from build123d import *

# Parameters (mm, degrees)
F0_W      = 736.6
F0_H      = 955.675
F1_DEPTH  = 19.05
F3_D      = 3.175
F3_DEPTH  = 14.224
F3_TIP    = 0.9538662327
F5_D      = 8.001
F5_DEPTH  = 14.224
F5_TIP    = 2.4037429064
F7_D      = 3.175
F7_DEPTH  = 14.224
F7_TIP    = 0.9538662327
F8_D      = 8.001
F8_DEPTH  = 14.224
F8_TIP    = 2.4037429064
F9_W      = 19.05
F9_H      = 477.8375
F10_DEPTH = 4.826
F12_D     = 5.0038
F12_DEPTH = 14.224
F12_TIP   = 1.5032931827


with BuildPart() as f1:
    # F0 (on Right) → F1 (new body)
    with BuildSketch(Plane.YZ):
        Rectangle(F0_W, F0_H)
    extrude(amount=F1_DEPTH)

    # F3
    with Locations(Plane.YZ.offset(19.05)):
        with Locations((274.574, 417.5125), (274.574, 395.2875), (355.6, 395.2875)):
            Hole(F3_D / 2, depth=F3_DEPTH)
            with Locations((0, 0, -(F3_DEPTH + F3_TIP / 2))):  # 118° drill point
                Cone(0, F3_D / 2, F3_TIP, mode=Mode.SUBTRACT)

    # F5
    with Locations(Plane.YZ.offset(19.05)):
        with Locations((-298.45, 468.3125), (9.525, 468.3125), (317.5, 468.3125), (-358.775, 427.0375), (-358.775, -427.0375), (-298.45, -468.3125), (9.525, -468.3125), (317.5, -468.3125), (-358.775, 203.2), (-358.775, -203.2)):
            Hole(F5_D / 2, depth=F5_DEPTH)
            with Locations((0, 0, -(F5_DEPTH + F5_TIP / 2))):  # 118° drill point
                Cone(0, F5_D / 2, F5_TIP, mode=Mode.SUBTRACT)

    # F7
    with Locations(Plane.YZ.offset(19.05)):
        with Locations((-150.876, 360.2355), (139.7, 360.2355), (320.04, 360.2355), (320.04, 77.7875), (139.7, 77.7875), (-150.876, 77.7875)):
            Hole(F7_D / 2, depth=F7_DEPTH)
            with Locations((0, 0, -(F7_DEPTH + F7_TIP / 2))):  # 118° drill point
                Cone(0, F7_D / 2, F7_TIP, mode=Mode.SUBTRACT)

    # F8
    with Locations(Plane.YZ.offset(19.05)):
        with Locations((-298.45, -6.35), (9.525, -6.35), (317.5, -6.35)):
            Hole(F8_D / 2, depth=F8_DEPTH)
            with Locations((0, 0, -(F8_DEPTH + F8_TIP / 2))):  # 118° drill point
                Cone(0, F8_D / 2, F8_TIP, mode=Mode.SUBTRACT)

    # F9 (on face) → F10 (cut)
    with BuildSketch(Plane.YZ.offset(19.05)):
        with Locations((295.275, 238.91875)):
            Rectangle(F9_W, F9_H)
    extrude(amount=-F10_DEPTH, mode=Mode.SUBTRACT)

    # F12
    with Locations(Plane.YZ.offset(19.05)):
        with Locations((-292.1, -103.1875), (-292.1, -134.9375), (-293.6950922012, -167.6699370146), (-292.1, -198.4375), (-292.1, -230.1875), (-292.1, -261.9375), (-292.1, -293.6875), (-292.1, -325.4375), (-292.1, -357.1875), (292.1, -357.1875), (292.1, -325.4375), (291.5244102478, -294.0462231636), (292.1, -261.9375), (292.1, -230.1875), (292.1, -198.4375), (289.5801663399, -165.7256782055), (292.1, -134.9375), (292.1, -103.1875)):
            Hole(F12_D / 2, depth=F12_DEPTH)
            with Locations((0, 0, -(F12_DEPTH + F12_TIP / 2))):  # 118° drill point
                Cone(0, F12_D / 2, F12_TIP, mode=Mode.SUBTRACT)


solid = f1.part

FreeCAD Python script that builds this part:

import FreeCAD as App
import Part
import Sketcher
from FreeCAD import Vector
Q = App.Units.Quantity


def add_polygon(sketch, points):
    """Adds a closed chain of lines whose ends are joined by coincident constraints."""
    first, n = sketch.GeometryCount, len(points)
    for a, b in zip(points, points[1:] + points[:1]):
        sketch.addGeometry(Part.LineSegment(App.Vector(*a, 0), App.Vector(*b, 0)), False)
    for i in range(n):
        sketch.addConstraint(Sketcher.Constraint("Coincident", first + i, 2, first + (i + 1) % n, 1))

doc = App.newDocument("Part")
body = doc.addObject("PartDesign::Body", "Body")

# Sketch on YZ plane
sketch1 = body.newObject("Sketcher::SketchObject", "Sketch")
sketch1.AttachmentSupport = (doc.getObject("YZ_Plane"), [""])
sketch1.MapMode = "FlatFace"
add_polygon(sketch1, [(-368.3, 477.8375), (-368.3, -477.8375), (368.3, -477.8375), (368.3, 477.8375)])  # lines 0-3
sketch1.addConstraint([
    Sketcher.Constraint("Vertical", 0),
    Sketcher.Constraint("Horizontal", 1),
    Sketcher.Constraint("Vertical", 2),
    Sketcher.Constraint("Horizontal", 3),
    Sketcher.Constraint("Symmetric", 0, 2, 2, 2, -1, 1),
    Sketcher.Constraint("DistanceX", 1, 1, 1, 2, Q("29 in")),
    Sketcher.Constraint("DistanceY", 0, 2, 0, 1, Q("37.625 in")),
])
pad1 = body.newObject("PartDesign::Pad", "Pad")
pad1.Profile = sketch1
pad1.Length = Q("0.75 in")

# Sketch on YZ plane
sketch2 = body.newObject("Sketcher::SketchObject", "Sketch001")
sketch2.AttachmentSupport = (doc.getObject("YZ_Plane"), [""])
sketch2.MapMode = "FlatFace"
sketch2.AttachmentOffset = App.Placement(Vector(0, 0, 0.75 * 25.4), App.Rotation())
sketch2.addGeometry([
    Part.Circle(Vector(274.574, 417.5125, 0), Vector(0, 0, 1), 1.5875),
    Part.Circle(Vector(274.574, 395.2875, 0), Vector(0, 0, 1), 1.5875),
    Part.Circle(Vector(355.6, 395.2875, 0), Vector(0, 0, 1), 1.5875),
], False)
sketch2.addConstraint([
    Sketcher.Constraint("Equal", 0, 1),
    Sketcher.Constraint("Equal", 1, 2),
    Sketcher.Constraint("Horizontal", 1, 3, 2, 3),
    Sketcher.Constraint("Vertical", 0, 3, 1, 3),
    Sketcher.Constraint("Diameter", 0, Q("0.125 in")),
    Sketcher.Constraint("DistanceX", -1, 1, 2, 3, Q("14 in")),
    Sketcher.Constraint("DistanceX", -1, 1, 0, 3, Q("10.81 in")),
    Sketcher.Constraint("DistanceY", -1, 1, 0, 3, Q("16.4375 in")),
    Sketcher.Constraint("DistanceY", -1, 1, 1, 3, Q("15.5625 in")),
])
doc.recompute()
hole = body.newObject("PartDesign::Hole", "Hole")
hole.Profile = sketch2
hole.ThreadType = "None"
hole.Diameter = Q("0.125 in")
hole.DepthType = "Dimension"
hole.Depth = Q("0.56 in")
hole.DrillPoint = "Angled"
hole.DrillPointAngle = 118

# Sketch on YZ plane
sketch3 = body.newObject("Sketcher::SketchObject", "Sketch002")
sketch3.AttachmentSupport = (doc.getObject("YZ_Plane"), [""])
sketch3.MapMode = "FlatFace"
sketch3.AttachmentOffset = App.Placement(Vector(0, 0, 0.75 * 25.4), App.Rotation())
sketch3.addGeometry([
    Part.Circle(Vector(-298.45, 468.3125, 0), Vector(0, 0, 1), 4.0005),  # 0
    Part.Circle(Vector(9.525, 468.3125, 0), Vector(0, 0, 1), 4.0005),  # 1
    Part.Circle(Vector(317.5, 468.3125, 0), Vector(0, 0, 1), 4.0005),  # 2
    Part.Circle(Vector(-358.775, 427.0375, 0), Vector(0, 0, 1), 4.0005),  # 3
    Part.Circle(Vector(-358.775, -427.0375, 0), Vector(0, 0, 1), 4.0005),  # 4
    Part.Circle(Vector(-298.45, -468.3125, 0), Vector(0, 0, 1), 4.0005),  # 5
    Part.Circle(Vector(9.525, -468.3125, 0), Vector(0, 0, 1), 4.0005),  # 6
    Part.Circle(Vector(317.5, -468.3125, 0), Vector(0, 0, 1), 4.0005),  # 7
    Part.Circle(Vector(-358.775, 203.2, 0), Vector(0, 0, 1), 4.0005),  # 8
    Part.Circle(Vector(-358.775, -203.2, 0), Vector(0, 0, 1), 4.0005),  # 9
], False)
sketch3.addConstraint([
    Sketcher.Constraint("Equal", 0, 1),
    Sketcher.Constraint("Equal", 1, 2),
    Sketcher.Constraint("Equal", 2, 3),
    Sketcher.Constraint("Equal", 3, 4),
    Sketcher.Constraint("Equal", 4, 5),
    Sketcher.Constraint("Equal", 5, 6),
    Sketcher.Constraint("Equal", 6, 7),
    Sketcher.Constraint("Equal", 7, 8),
    Sketcher.Constraint("Equal", 8, 9),
    Sketcher.Constraint("Symmetric", 3, 3, 4, 3, -1),
    Sketcher.Constraint("Symmetric", 0, 3, 5, 3, -1),
    Sketcher.Constraint("Symmetric", 1, 3, 6, 3, -1),
    Sketcher.Constraint("Symmetric", 2, 3, 7, 3, -1),
    Sketcher.Constraint("Symmetric", 8, 3, 9, 3, -1),
    Sketcher.Constraint("Horizontal", 0, 3, 1, 3),
    Sketcher.Constraint("Horizontal", 1, 3, 2, 3),
    Sketcher.Constraint("Vertical", 4, 3, 8, 3),
    Sketcher.Constraint("Diameter", 0, Q("0.315 in")),
    Sketcher.Constraint("DistanceY", -1, 1, 8, 3, Q("8 in")),
    Sketcher.Constraint("DistanceX", -1, 1, 2, 3, Q("12.5 in")),
    Sketcher.Constraint("DistanceX", 3, 3, 1, 3, Q("14.5 in")),
    Sketcher.Constraint("DistanceX", 0, 3, -1, 1, Q("11.75 in")),
    Sketcher.Constraint("DistanceY", 4, 3, 0, 3, Q("35.25 in")),
    Sketcher.Constraint("DistanceY", -1, 1, 0, 3, Q("18.4375 in")),
    Sketcher.Constraint("DistanceX", -1, 1, 1, 3, Q("0.375 in")),
])
doc.recompute()
hole2 = body.newObject("PartDesign::Hole", "Hole001")
hole2.Profile = sketch3
hole2.ThreadType = "None"
hole2.Diameter = Q("0.315 in")
hole2.DepthType = "Dimension"
hole2.Depth = Q("0.56 in")
hole2.DrillPoint = "Angled"
hole2.DrillPointAngle = 118

# Sketch on YZ plane
sketch4 = body.newObject("Sketcher::SketchObject", "Sketch003")
sketch4.AttachmentSupport = (doc.getObject("YZ_Plane"), [""])
sketch4.MapMode = "FlatFace"
sketch4.AttachmentOffset = App.Placement(Vector(0, 0, 0.75 * 25.4), App.Rotation())
sketch4.addGeometry([
    Part.Circle(Vector(-150.876, 360.2355, 0), Vector(0, 0, 1), 1.5875),  # 0
    Part.Circle(Vector(139.7, 360.2355, 0), Vector(0, 0, 1), 1.5875),  # 1
    Part.Circle(Vector(320.04, 360.2355, 0), Vector(0, 0, 1), 1.5875),  # 2
    Part.Circle(Vector(320.04, 77.7875, 0), Vector(0, 0, 1), 1.5875),  # 3
    Part.Circle(Vector(139.7, 77.7875, 0), Vector(0, 0, 1), 1.5875),  # 4
    Part.Circle(Vector(-150.876, 77.7875, 0), Vector(0, 0, 1), 1.5875),  # 5
], False)
sketch4.addConstraint([
    Sketcher.Constraint("Equal", 0, 1),
    Sketcher.Constraint("Equal", 1, 2),
    Sketcher.Constraint("Equal", 2, 3),
    Sketcher.Constraint("Equal", 3, 4),
    Sketcher.Constraint("Equal", 4, 5),
    Sketcher.Constraint("Horizontal", 0, 3, 1, 3),
    Sketcher.Constraint("Horizontal", 1, 3, 2, 3),
    Sketcher.Constraint("Horizontal", 3, 3, 4, 3),
    Sketcher.Constraint("Horizontal", 4, 3, 5, 3),
    Sketcher.Constraint("Vertical", 2, 3, 3, 3),
    Sketcher.Constraint("Vertical", 1, 3, 4, 3),
    Sketcher.Constraint("Vertical", 0, 3, 5, 3),
    Sketcher.Constraint("Diameter", 0, Q("0.125 in")),
    Sketcher.Constraint("DistanceX", -1, 1, 1, 3, Q("5.5 in")),
    Sketcher.Constraint("DistanceX", -1, 1, 2, 3, Q("12.6 in")),
    Sketcher.Constraint("DistanceX", 0, 3, -1, 1, Q("5.94 in")),
    Sketcher.Constraint("DistanceY", 3, 3, 2, 3, Q("11.12 in")),
    Sketcher.Constraint("DistanceY", -1, 1, 3, 3, Q("3.0625 in")),
])
doc.recompute()
hole3 = body.newObject("PartDesign::Hole", "Hole002")
hole3.Profile = sketch4
hole3.ThreadType = "None"
hole3.Diameter = Q("0.125 in")
hole3.DepthType = "Dimension"
hole3.Depth = Q("0.56 in")
hole3.DrillPoint = "Angled"
hole3.DrillPointAngle = 118

# Sketch on YZ plane
sketch5 = body.newObject("Sketcher::SketchObject", "Sketch004")
sketch5.AttachmentSupport = (doc.getObject("YZ_Plane"), [""])
sketch5.MapMode = "FlatFace"
sketch5.AttachmentOffset = App.Placement(Vector(0, 0, 0.75 * 25.4), App.Rotation())
sketch5.addGeometry([
    Part.Circle(Vector(-298.45, -6.35, 0), Vector(0, 0, 1), 4.0005),
    Part.Circle(Vector(9.525, -6.35, 0), Vector(0, 0, 1), 4.0005),
    Part.Circle(Vector(317.5, -6.35, 0), Vector(0, 0, 1), 4.0005),
], False)
sketch5.addConstraint([
    Sketcher.Constraint("Equal", 0, 1),
    Sketcher.Constraint("Equal", 1, 2),
    Sketcher.Constraint("Horizontal", 0, 3, 1, 3),
    Sketcher.Constraint("Horizontal", 1, 3, 2, 3),
    Sketcher.Constraint("Diameter", 0, Q("0.315 in")),
    Sketcher.Constraint("DistanceX", -1, 1, 2, 3, Q("12.5 in")),
    Sketcher.Constraint("DistanceX", 0, 3, -1, 1, Q("11.75 in")),
    Sketcher.Constraint("DistanceY", 0, 3, -1, 1, Q("0.25 in")),
    Sketcher.Constraint("DistanceX", -1, 1, 1, 3, Q("0.375 in")),
])
doc.recompute()
hole4 = body.newObject("PartDesign::Hole", "Hole003")
hole4.Profile = sketch5
hole4.ThreadType = "None"
hole4.Diameter = Q("0.315 in")
hole4.DepthType = "Dimension"
hole4.Depth = Q("0.56 in")
hole4.DrillPoint = "Angled"
hole4.DrillPointAngle = 118

# Sketch on YZ plane
sketch6 = body.newObject("Sketcher::SketchObject", "Sketch005")
sketch6.AttachmentSupport = (doc.getObject("YZ_Plane"), [""])
sketch6.MapMode = "FlatFace"
sketch6.AttachmentOffset = App.Placement(Vector(0, 0, 0.75 * 25.4), App.Rotation())
add_polygon(sketch6, [(285.75, 477.8375), (285.75, 0), (304.8, 0), (304.8, 477.8375)])  # lines 0-3
sketch6.addConstraint([
    Sketcher.Constraint("Vertical", 0),
    Sketcher.Constraint("Horizontal", 1),
    Sketcher.Constraint("Vertical", 2),
    Sketcher.Constraint("Horizontal", 3),
    Sketcher.Constraint("PointOnObject", 0, 2, -1),
    Sketcher.Constraint("DistanceX", -1, 1, 1, 2, Q("12 in")),
    Sketcher.Constraint("DistanceX", 1, 1, 1, 2, Q("0.75 in")),
    Sketcher.Constraint("DistanceY", 0, 2, 0, 1, Q("18.8125 in")),
])
pocket1 = body.newObject("PartDesign::Pocket", "Pocket")
pocket1.Profile = sketch6
pocket1.Length = Q("0.19 in")

# Sketch on YZ plane
sketch7 = body.newObject("Sketcher::SketchObject", "Sketch006")
sketch7.AttachmentSupport = (doc.getObject("YZ_Plane"), [""])
sketch7.MapMode = "FlatFace"
sketch7.AttachmentOffset = App.Placement(Vector(0, 0, 0.75 * 25.4), App.Rotation())
sketch7.addGeometry([
    Part.Circle(Vector(-292.1, -103.1875, 0), Vector(0, 0, 1), 2.5019),  # 0
    Part.Circle(Vector(-292.1, -134.9375, 0), Vector(0, 0, 1), 2.5019),  # 1
    Part.Circle(Vector(-293.695092, -167.669937, 0), Vector(0, 0, 1), 2.5019),  # 2
    Part.Circle(Vector(-292.1, -198.4375, 0), Vector(0, 0, 1), 2.5019),  # 3
    Part.Circle(Vector(-292.1, -230.1875, 0), Vector(0, 0, 1), 2.5019),  # 4
    Part.Circle(Vector(-292.1, -261.9375, 0), Vector(0, 0, 1), 2.5019),  # 5
    Part.Circle(Vector(-292.1, -293.6875, 0), Vector(0, 0, 1), 2.5019),  # 6
    Part.Circle(Vector(-292.1, -325.4375, 0), Vector(0, 0, 1), 2.5019),  # 7
    Part.Circle(Vector(-292.1, -357.1875, 0), Vector(0, 0, 1), 2.5019),  # 8
    Part.Circle(Vector(292.1, -357.1875, 0), Vector(0, 0, 1), 2.5019),  # 9
    Part.Circle(Vector(292.1, -325.4375, 0), Vector(0, 0, 1), 2.5019),  # 10
    Part.Circle(Vector(291.52441, -294.046223, 0), Vector(0, 0, 1), 2.5019),  # 11
    Part.Circle(Vector(292.1, -261.9375, 0), Vector(0, 0, 1), 2.5019),  # 12
    Part.Circle(Vector(292.1, -230.1875, 0), Vector(0, 0, 1), 2.5019),  # 13
    Part.Circle(Vector(292.1, -198.4375, 0), Vector(0, 0, 1), 2.5019),  # 14
    Part.Circle(Vector(289.580166, -165.725678, 0), Vector(0, 0, 1), 2.5019),  # 15
    Part.Circle(Vector(292.1, -134.9375, 0), Vector(0, 0, 1), 2.5019),  # 16
    Part.Circle(Vector(292.1, -103.1875, 0), Vector(0, 0, 1), 2.5019),  # 17
], False)
sketch7.addConstraint([
    Sketcher.Constraint("Equal", 0, 1),
    Sketcher.Constraint("Equal", 1, 2),
    Sketcher.Constraint("Equal", 2, 3),
    Sketcher.Constraint("Equal", 3, 4),
    Sketcher.Constraint("Equal", 4, 5),
    Sketcher.Constraint("Equal", 5, 6),
    Sketcher.Constraint("Equal", 6, 7),
    Sketcher.Constraint("Equal", 7, 8),
    Sketcher.Constraint("Equal", 8, 9),
    Sketcher.Constraint("Equal", 9, 10),
    Sketcher.Constraint("Equal", 10, 11),
    Sketcher.Constraint("Equal", 11, 12),
    Sketcher.Constraint("Equal", 12, 13),
    Sketcher.Constraint("Equal", 13, 14),
    Sketcher.Constraint("Equal", 14, 15),
    Sketcher.Constraint("Equal", 15, 16),
    Sketcher.Constraint("Equal", 16, 17),
    Sketcher.Constraint("Symmetric", 8, 3, 9, 3, -2),
    Sketcher.Constraint("Symmetric", 7, 3, 10, 3, -2),
    Sketcher.Constraint("Symmetric", 5, 3, 12, 3, -2),
    Sketcher.Constraint("Symmetric", 4, 3, 13, 3, -2),
    Sketcher.Constraint("Symmetric", 3, 3, 14, 3, -2),
    Sketcher.Constraint("Symmetric", 1, 3, 16, 3, -2),
    Sketcher.Constraint("Symmetric", 0, 3, 17, 3, -2),
    Sketcher.Constraint("Vertical", 0, 3, 1, 3),
    Sketcher.Constraint("Vertical", 1, 3, 3, 3),
    Sketcher.Constraint("Vertical", 3, 3, 4, 3),
    Sketcher.Constraint("Vertical", 4, 3, 5, 3),
    Sketcher.Constraint("Vertical", 5, 3, 6, 3),
    Sketcher.Constraint("Vertical", 6, 3, 7, 3),
    Sketcher.Constraint("Vertical", 7, 3, 8, 3),
    Sketcher.Constraint("Diameter", 0, Q("0.197 in")),
    Sketcher.Constraint("DistanceY", 4, 3, 0, 3, Q("5 in")),
    Sketcher.Constraint("DistanceY", 5, 3, 1, 3, Q("5 in")),
    Sketcher.Constraint("DistanceY", 7, 3, 3, 3, Q("5 in")),
    Sketcher.Constraint("DistanceY", 8, 3, 4, 3, Q("5 in")),
    Sketcher.Constraint("DistanceX", 8, 3, 9, 3, Q("23 in")),
    Sketcher.Constraint("DistanceY", 3, 3, 1, 3, Q("2.5 in")),
    Sketcher.Constraint("DistanceY", 6, 3, 4, 3, Q("2.5 in")),
    Sketcher.Constraint("DistanceY", 1, 3, 0, 3, Q("1.25 in")),
    Sketcher.Constraint("DistanceY", 0, 3, -1, 1, Q("4.0625 in")),
    Sketcher.Constraint("DistanceX", -1, 1, 11, 3, Q("291.52441 mm")),
    Sketcher.Constraint("DistanceY", 15, 3, -1, 1, Q("165.725678 mm")),
    Sketcher.Constraint("DistanceX", 2, 3, -1, 1, Q("293.695092 mm")),
    Sketcher.Constraint("DistanceY", 2, 3, -1, 1, Q("167.669937 mm")),
    Sketcher.Constraint("DistanceY", 11, 3, -1, 1, Q("294.046223 mm")),
    Sketcher.Constraint("DistanceX", -1, 1, 15, 3, Q("289.580166 mm")),
])
doc.recompute()
hole5 = body.newObject("PartDesign::Hole", "Hole004")
hole5.Profile = sketch7
hole5.ThreadType = "None"
hole5.Diameter = Q("0.197 in")
hole5.DepthType = "Dimension"
hole5.Depth = Q("0.56 in")
hole5.DrillPoint = "Angled"
hole5.DrillPointAngle = 118

doc.recompute()
